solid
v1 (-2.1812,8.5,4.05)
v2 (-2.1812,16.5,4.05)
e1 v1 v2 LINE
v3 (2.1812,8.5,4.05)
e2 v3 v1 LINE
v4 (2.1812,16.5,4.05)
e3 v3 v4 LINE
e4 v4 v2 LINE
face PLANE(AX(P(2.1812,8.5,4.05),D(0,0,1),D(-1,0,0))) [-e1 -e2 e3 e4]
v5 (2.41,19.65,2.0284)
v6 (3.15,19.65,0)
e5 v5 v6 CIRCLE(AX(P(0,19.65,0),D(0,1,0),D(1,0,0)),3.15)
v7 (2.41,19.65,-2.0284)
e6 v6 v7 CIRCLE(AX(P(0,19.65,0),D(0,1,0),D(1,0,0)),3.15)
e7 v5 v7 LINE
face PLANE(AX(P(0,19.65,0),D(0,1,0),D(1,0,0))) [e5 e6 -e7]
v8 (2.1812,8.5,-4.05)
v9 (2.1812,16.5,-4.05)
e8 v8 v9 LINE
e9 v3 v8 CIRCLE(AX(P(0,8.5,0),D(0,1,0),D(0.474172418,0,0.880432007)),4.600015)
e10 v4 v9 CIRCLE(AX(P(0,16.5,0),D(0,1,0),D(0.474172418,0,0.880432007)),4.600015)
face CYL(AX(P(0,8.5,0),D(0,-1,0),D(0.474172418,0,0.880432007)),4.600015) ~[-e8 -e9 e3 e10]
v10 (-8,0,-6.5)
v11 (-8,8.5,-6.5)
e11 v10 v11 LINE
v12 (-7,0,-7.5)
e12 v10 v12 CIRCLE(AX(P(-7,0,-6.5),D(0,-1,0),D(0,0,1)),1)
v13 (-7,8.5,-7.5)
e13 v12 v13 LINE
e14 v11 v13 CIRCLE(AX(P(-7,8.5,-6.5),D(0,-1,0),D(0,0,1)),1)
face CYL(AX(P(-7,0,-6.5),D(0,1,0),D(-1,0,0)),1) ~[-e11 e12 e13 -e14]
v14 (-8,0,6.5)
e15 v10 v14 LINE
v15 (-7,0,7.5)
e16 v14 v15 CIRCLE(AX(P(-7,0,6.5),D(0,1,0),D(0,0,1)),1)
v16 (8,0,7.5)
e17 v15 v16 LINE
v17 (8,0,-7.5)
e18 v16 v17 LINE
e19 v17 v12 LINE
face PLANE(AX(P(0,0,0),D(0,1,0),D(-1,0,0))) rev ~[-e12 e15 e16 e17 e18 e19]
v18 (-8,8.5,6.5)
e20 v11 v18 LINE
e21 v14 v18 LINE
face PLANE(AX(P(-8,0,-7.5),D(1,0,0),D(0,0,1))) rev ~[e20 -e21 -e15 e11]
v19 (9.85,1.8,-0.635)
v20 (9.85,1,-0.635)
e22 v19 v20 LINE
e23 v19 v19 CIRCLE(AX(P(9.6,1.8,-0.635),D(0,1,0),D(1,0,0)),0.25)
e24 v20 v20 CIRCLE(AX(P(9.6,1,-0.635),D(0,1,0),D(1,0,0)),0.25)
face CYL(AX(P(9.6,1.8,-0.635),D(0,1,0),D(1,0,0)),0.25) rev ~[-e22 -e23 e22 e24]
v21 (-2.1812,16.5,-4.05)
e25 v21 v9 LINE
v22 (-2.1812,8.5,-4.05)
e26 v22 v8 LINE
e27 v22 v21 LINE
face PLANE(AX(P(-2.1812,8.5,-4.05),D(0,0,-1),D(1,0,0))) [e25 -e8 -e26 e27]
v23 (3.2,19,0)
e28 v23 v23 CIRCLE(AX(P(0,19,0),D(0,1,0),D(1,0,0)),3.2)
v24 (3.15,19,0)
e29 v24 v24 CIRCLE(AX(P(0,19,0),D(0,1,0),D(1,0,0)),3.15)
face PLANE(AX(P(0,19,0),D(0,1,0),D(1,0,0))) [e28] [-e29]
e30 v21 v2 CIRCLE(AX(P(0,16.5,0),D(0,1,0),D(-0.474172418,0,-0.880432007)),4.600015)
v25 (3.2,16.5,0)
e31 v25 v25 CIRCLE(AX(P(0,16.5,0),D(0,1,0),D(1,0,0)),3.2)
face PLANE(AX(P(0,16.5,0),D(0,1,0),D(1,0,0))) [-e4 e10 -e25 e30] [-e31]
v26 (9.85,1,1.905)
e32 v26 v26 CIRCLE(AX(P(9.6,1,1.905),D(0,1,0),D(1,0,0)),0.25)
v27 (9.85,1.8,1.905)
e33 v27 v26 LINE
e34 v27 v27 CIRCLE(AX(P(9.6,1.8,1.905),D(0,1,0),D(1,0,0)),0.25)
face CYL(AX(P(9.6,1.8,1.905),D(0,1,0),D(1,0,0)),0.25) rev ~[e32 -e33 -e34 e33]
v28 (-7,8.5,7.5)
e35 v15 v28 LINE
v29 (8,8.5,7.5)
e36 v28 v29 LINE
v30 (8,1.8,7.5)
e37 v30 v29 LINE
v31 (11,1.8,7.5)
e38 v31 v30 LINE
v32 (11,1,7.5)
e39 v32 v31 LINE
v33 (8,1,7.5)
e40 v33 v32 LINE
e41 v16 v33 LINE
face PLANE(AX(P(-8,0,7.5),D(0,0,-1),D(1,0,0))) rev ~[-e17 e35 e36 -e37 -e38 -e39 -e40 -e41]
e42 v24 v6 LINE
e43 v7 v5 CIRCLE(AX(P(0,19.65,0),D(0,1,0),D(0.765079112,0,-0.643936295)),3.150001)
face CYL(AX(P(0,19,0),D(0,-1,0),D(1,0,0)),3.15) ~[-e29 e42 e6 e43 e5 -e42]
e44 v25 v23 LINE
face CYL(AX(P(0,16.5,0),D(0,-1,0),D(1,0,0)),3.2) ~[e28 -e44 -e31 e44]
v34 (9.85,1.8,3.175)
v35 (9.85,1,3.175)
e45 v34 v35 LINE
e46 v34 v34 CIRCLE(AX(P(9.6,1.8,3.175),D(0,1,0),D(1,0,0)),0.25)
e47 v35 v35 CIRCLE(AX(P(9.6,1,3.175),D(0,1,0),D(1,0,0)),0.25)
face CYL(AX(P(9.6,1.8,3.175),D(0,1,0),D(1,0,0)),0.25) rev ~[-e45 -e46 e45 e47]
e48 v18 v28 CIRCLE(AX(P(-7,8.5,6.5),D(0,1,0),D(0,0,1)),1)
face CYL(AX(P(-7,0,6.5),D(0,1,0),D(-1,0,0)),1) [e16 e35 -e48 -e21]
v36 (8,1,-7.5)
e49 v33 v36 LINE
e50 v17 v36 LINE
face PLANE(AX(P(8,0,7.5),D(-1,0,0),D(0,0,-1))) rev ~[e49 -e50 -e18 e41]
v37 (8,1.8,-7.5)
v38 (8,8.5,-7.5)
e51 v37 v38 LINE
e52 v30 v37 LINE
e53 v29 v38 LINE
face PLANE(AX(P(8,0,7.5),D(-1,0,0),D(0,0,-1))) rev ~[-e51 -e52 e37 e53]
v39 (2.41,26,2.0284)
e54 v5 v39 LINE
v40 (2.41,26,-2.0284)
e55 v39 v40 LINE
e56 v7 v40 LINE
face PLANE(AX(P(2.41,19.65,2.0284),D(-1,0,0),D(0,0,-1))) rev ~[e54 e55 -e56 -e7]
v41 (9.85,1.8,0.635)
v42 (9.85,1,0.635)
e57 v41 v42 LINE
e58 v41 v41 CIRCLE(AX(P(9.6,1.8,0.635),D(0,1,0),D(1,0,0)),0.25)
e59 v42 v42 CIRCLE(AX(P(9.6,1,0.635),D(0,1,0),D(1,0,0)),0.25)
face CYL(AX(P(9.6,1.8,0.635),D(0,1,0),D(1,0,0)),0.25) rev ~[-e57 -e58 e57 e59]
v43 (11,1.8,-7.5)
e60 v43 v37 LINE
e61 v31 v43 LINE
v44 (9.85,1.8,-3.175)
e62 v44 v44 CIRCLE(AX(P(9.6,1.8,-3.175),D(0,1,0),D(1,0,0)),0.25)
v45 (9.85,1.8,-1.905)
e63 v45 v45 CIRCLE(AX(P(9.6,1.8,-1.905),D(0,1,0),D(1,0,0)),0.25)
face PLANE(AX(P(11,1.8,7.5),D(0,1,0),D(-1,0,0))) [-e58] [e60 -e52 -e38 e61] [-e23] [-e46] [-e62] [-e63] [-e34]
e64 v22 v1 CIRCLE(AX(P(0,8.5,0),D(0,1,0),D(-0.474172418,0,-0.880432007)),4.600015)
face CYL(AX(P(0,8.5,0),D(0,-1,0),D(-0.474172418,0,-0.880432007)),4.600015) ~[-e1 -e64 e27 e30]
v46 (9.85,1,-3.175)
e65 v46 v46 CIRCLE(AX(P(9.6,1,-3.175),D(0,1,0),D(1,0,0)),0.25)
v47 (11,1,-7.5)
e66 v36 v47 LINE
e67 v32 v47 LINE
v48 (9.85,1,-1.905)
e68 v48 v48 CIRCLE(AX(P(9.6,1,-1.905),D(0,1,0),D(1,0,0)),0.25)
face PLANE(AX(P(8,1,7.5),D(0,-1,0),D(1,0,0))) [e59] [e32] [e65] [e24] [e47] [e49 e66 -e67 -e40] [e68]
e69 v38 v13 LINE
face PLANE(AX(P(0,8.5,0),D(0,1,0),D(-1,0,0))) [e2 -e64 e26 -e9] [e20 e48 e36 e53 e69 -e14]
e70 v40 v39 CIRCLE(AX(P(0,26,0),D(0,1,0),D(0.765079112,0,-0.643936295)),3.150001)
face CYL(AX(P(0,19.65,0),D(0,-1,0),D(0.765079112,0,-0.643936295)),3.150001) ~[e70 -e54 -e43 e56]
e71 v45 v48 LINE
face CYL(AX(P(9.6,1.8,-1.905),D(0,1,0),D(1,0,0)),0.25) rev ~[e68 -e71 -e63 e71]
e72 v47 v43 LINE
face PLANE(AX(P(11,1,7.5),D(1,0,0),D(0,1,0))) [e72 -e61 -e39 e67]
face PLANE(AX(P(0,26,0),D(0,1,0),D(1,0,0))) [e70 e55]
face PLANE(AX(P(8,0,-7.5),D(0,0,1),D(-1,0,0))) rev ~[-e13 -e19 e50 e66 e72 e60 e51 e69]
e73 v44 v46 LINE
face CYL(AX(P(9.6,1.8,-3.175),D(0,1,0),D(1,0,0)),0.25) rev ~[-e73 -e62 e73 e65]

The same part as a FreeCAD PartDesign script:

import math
import FreeCAD as App
import Part
import Sketcher
Q = App.Units.Quantity


def edges_at(feature, points):
    """Names of the edges that pass closest to the given points."""
    edges = feature.Shape.Edges
    near = lambda p: min(range(len(edges)), key=lambda i: edges[i].distToShape(Part.Vertex(*p))[0])
    return sorted({f"Edge{near(p) + 1}" for p in points})


def add_polygon(sketch, points):
    """Adds a closed chain of lines whose ends are joined by coincident constraints."""
    first, n = sketch.GeometryCount, len(points)
    for a, b in zip(points, points[1:] + points[:1]):
        sketch.addGeometry(Part.LineSegment(App.Vector(*a, 0), App.Vector(*b, 0)), False)
    for i in range(n):
        sketch.addConstraint(Sketcher.Constraint("Coincident", first + i, 2, first + (i + 1) % n, 1))

doc = App.newDocument("Part")
body = doc.addObject("PartDesign::Body", "Body")

# Sketch on XZ plane
sketch1 = doc.addObject("Sketcher::SketchObject", "Sketch")
body.addObject(sketch1)
sketch1.AttachmentSupport = (doc.XZ_Plane, [""])
sketch1.MapMode = "FlatFace"
add_polygon(sketch1, [(-8, -8), (-8, 8), (8, 8), (8, -8)])  # lines 0-3
sketch1.addConstraint([
    Sketcher.Constraint("Vertical", 0),
    Sketcher.Constraint("Horizontal", 1),
    Sketcher.Constraint("Vertical", 2),
    Sketcher.Constraint("Horizontal", 3),
    Sketcher.Constraint("Symmetric", 0, 2, 2, 2, -1, 1),
    Sketcher.Constraint("DistanceX", 1, 1, 1, 2, Q("16 mm")),
    Sketcher.Constraint("DistanceY", 0, 1, 0, 2, Q("15 mm")),
])
pad1 = doc.addObject("PartDesign::Pad", "Pad")
body.addObject(pad1)
pad1.Profile = sketch1
pad1.Length = 8.5
pad1.Reversed = True
doc.recompute()

fillet = doc.addObject("PartDesign::Fillet", "Fillet")
body.addObject(fillet)
fillet.Base = (pad1, edges_at(pad1, [(-8, 4.25, 7.5), (-8, 4.25, -7.5)]))
fillet.Radius = 1

# Sketch on XY plane
sketch2 = doc.addObject("Sketcher::SketchObject", "Sketch001")
body.addObject(sketch2)
sketch2.AttachmentSupport = (doc.XY_Plane, [""])
sketch2.MapMode = "FlatFace"
sketch2.AttachmentOffset = App.Placement(App.Vector(0, 0, 7.5), App.Rotation())
add_polygon(sketch2, [(8, 1.8), (8, 1), (11, 1), (11, 1.8)])  # lines 0-3
sketch2.addConstraint([
    Sketcher.Constraint("Vertical", 0),
    Sketcher.Constraint("Horizontal", 1),
    Sketcher.Constraint("Vertical", 2),
    Sketcher.Constraint("Horizontal", 3),
    Sketcher.Constraint("DistanceY", 0, 2, 0, 1, Q("0.8 mm")),
    Sketcher.Constraint("DistanceX", 1, 1, 1, 2, Q("3 mm")),
    Sketcher.Constraint("DistanceX", -1, 1, 0, 2, Q("8 mm")),
    Sketcher.Constraint("DistanceY", -1, 1, 0, 2, Q("1 mm")),
])
pad2 = doc.addObject("PartDesign::Pad", "Pad001")
body.addObject(pad2)
pad2.Profile = sketch2
pad2.Length = 15
pad2.Reversed = True

# Sketch on XZ plane
sketch3 = doc.addObject("Sketcher::SketchObject", "Sketch002")
body.addObject(sketch3)
sketch3.AttachmentSupport = (doc.XZ_Plane, [""])
sketch3.MapMode = "FlatFace"
sketch3.AttachmentOffset = App.Placement(App.Vector(0, 0, -1.8), App.Rotation())
sketch3.addGeometry([
    Part.Circle(App.Vector(9.6, 0.64, 0), App.Vector(0, 0, 1), 0.25),  # 0
    Part.Circle(App.Vector(9.6, -0.64, 0), App.Vector(0, 0, 1), 0.25),  # 1
    Part.Circle(App.Vector(9.6, -1.91, 0), App.Vector(0, 0, 1), 0.25),  # 2
    Part.Circle(App.Vector(9.6, -3.17, 0), App.Vector(0, 0, 1), 0.25),  # 3
    Part.Circle(App.Vector(9.6, 1.91, 0), App.Vector(0, 0, 1), 0.25),  # 4
    Part.Circle(App.Vector(9.6, 3.17, 0), App.Vector(0, 0, 1), 0.25),  # 5
], False)
sketch3.addConstraint([
    Sketcher.Constraint("Equal", 0, 1),
    Sketcher.Constraint("Equal", 1, 2),
    Sketcher.Constraint("Equal", 2, 3),
    Sketcher.Constraint("Equal", 3, 4),
    Sketcher.Constraint("Equal", 4, 5),
    Sketcher.Constraint("Symmetric", 0, 3, 1, 3, -1),
    Sketcher.Constraint("Symmetric", 2, 3, 4, 3, -1),
    Sketcher.Constraint("Symmetric", 3, 3, 5, 3, -1),
    Sketcher.Constraint("Vertical", 1, 3, 2, 3),
    Sketcher.Constraint("Vertical", 2, 3, 3, 3),
    Sketcher.Constraint("Diameter", 0, Q("0.5 mm")),
    Sketcher.Constraint("DistanceX", -1, 1, 0, 3, Q("9.6 mm")),
    Sketcher.Constraint("DistanceY", 1, 3, 0, 3, Q("1.27 mm")),
    Sketcher.Constraint("DistanceY", 2, 3, 1, 3, Q("1.27 mm")),
    Sketcher.Constraint("DistanceY", 3, 3, 2, 3, Q("1.27 mm")),
])
pocket1 = doc.addObject("PartDesign::Pocket", "Pocket")
body.addObject(pocket1)
pocket1.Profile = sketch3
pocket1.Length = 15
pocket1.Reversed = True

# Sketch on XZ plane
sketch4 = doc.addObject("Sketcher::SketchObject", "Sketch003")
body.addObject(sketch4)
sketch4.AttachmentSupport = (doc.XZ_Plane, [""])
sketch4.MapMode = "FlatFace"
sketch4.AttachmentOffset = App.Placement(App.Vector(0, 0, -8.5), App.Rotation())
sketch4.addGeometry([
    Part.LineSegment(App.Vector(2.2, -4, 0), App.Vector(-2.2, -4, 0)),
    Part.ArcOfCircle(Part.Circle(App.Vector(0, 0, 0), App.Vector(0, 0, 1), 4.6), math.radians(118), math.radians(242)),
    Part.LineSegment(App.Vector(-2.2, 4, 0), App.Vector(2.2, 4, 0)),
    Part.ArcOfCircle(Part.Circle(App.Vector(0, 0, 0), App.Vector(0, 0, 1), 4.6), math.radians(-62), math.radians(62)),
], False)
sketch4.addConstraint([
    Sketcher.Constraint("Coincident", 0, 2, 1, 2),
    Sketcher.Constraint("Coincident", 1, 1, 2, 1),
    Sketcher.Constraint("Coincident", 2, 2, 3, 2),
    Sketcher.Constraint("Coincident", 3, 1, 0, 1),
    Sketcher.Constraint("Horizontal", 0),
    Sketcher.Constraint("Horizontal", 2),
    Sketcher.Constraint("Coincident", 1, 3, -1, 1),
    Sketcher.Constraint("Coincident", 3, 3, -1, 1),
    Sketcher.Constraint("Equal", 1, 3),
    Sketcher.Constraint("Vertical", 0, 2, 1, 1),
    Sketcher.Constraint("Radius", 1, Q("4.6 mm")),
    Sketcher.Constraint("DistanceY", 0, 2, 1, 1, Q("8.1 mm")),
])
pad3 = doc.addObject("PartDesign::Pad", "Pad002")
body.addObject(pad3)
pad3.Profile = sketch4
pad3.Length = 8
pad3.Reversed = True

# Sketch on XZ plane
sketch5 = doc.addObject("Sketcher::SketchObject", "Sketch004")
body.addObject(sketch5)
sketch5.AttachmentSupport = (doc.XZ_Plane, [""])
sketch5.MapMode = "FlatFace"
sketch5.AttachmentOffset = App.Placement(App.Vector(0, 0, -16.5), App.Rotation())
sketch5.addGeometry(Part.Circle(App.Vector(0, 0, 0), App.Vector(0, 0, 1), 3.2), False)
sketch5.addConstraint([
    Sketcher.Constraint("Coincident", 0, 3, -1, 1),
    Sketcher.Constraint("Diameter", 0, Q("6.4 mm")),
])
pad4 = doc.addObject("PartDesign::Pad", "Pad003")
body.addObject(pad4)
pad4.Profile = sketch5
pad4.Length = 2.5
pad4.Reversed = True

# Sketch on XZ plane
sketch6 = doc.addObject("Sketcher::SketchObject", "Sketch005")
body.addObject(sketch6)
sketch6.AttachmentSupport = (doc.XZ_Plane, [""])
sketch6.MapMode = "FlatFace"
sketch6.AttachmentOffset = App.Placement(App.Vector(0, 0, -19), App.Rotation())
sketch6.addGeometry(Part.Circle(App.Vector(0, 0, 0), App.Vector(0, 0, 1), 3.1), False)
sketch6.addConstraint([
    Sketcher.Constraint("Coincident", 0, 3, -1, 1),
    Sketcher.Constraint("Diameter", 0, Q("6.3 mm")),
])
pad5 = doc.addObject("PartDesign::Pad", "Pad004")
body.addObject(pad5)
pad5.Profile = sketch6
pad5.Length = 0.65
pad5.Reversed = True

# Sketch on XZ plane
sketch7 = doc.addObject("Sketcher::SketchObject", "Sketch006")
body.addObject(sketch7)
sketch7.AttachmentSupport = (doc.XZ_Plane, [""])
sketch7.MapMode = "FlatFace"
sketch7.AttachmentOffset = App.Placement(App.Vector(0, 0, -19.65), App.Rotation())
sketch7.addGeometry([
    Part.LineSegment(App.Vector(2.4, 2, 0), App.Vector(2.4, -2, 0)),
    Part.ArcOfCircle(Part.Circle(App.Vector(0, 0, 0), App.Vector(0, 0, 1), 3.2), math.radians(40), math.radians(320)),
], False)
sketch7.addConstraint([
    Sketcher.Constraint("Coincident", 0, 1, 1, 1),
    Sketcher.Constraint("Coincident", 1, 2, 0, 2),
    Sketcher.Constraint("Vertical", 0),
    Sketcher.Constraint("Coincident", 1, 3, -1, 1),
    Sketcher.Constraint("Radius", 1, Q("3.15 mm")),
    Sketcher.Constraint("DistanceX", -1, 1, 0, 1, Q("2.41 mm")),
])
pad6 = doc.addObject("PartDesign::Pad", "Pad005")
body.addObject(pad6)
pad6.Profile = sketch7
pad6.Length = 6.35
pad6.Reversed = True

doc.recompute()
